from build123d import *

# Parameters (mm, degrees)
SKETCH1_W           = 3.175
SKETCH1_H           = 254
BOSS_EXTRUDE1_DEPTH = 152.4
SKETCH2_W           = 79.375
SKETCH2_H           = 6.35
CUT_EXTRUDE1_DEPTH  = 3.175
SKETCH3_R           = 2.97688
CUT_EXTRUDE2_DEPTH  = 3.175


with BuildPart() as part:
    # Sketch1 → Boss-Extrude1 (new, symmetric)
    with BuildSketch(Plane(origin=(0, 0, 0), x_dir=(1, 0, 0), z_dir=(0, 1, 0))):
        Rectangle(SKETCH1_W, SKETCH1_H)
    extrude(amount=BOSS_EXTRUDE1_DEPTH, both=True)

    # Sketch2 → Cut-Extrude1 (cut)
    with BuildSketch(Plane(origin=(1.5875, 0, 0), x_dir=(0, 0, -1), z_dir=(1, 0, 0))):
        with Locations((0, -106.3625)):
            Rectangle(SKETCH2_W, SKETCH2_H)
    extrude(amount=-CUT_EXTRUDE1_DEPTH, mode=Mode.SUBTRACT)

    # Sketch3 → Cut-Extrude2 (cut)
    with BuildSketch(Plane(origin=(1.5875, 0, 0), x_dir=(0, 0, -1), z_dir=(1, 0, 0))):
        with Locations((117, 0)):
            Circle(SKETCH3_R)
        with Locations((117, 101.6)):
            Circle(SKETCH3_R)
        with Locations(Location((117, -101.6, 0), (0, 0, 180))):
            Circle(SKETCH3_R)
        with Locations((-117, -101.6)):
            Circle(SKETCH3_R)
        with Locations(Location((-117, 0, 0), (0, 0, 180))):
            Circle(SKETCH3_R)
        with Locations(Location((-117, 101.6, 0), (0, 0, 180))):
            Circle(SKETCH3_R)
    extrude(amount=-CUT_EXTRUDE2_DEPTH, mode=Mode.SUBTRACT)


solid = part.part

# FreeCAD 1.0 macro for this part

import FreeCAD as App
import Part
import Sketcher

V = App.Vector
Q = App.Units.Quantity


def add_polygon(sketch, points):
    """Adds a closed chain of lines whose ends are joined by coincident constraints."""
    first, n = sketch.GeometryCount, len(points)
    for a, b in zip(points, points[1:] + points[:1]):
        sketch.addGeometry(Part.LineSegment(App.Vector(*a, 0), App.Vector(*b, 0)), False)
    for i in range(n):
        sketch.addConstraint(Sketcher.Constraint("Coincident", first + i, 2, first + (i + 1) % n, 1))

doc = App.newDocument("Part")
body = doc.addObject("PartDesign::Body", "Body")

# Sketch on XZ plane
sketch1 = body.newObject("Sketcher::SketchObject", "Sketch")
sketch1.AttachmentSupport = (doc.getObject("XZ_Plane"), [""])
sketch1.MapMode = "FlatFace"
add_polygon(sketch1, [(-1.6, -127), (-1.6, 127), (1.6, 127), (1.6, -127)])  # lines 0-3
sketch1.addConstraint(Sketcher.Constraint("Vertical", 0))
sketch1.addConstraint(Sketcher.Constraint("Horizontal", 1))
sketch1.addConstraint(Sketcher.Constraint("Vertical", 2))
sketch1.addConstraint(Sketcher.Constraint("Horizontal", 3))
sketch1.addConstraint(Sketcher.Constraint("Symmetric", 0, 2, 2, 2, -1, 1))
sketch1.addConstraint(Sketcher.Constraint("DistanceY", 0, 1, 0, 2, Q("10 in")))
sketch1.addConstraint(Sketcher.Constraint("DistanceX", 1, 1, 1, 2, Q("0.125 in")))
pad1 = body.newObject("PartDesign::Pad", "Pad")
pad1.Profile = sketch1
pad1.Length = Q("12 in")
pad1.Midplane = True

# Sketch on YZ plane
sketch2 = body.newObject("Sketcher::SketchObject", "Sketch001")
sketch2.AttachmentSupport = (doc.getObject("YZ_Plane"), [""])
sketch2.MapMode = "FlatFace"
sketch2.AttachmentOffset = App.Placement(V(0, 0, 0.0625 * 25.4), App.Rotation())
add_polygon(sketch2, [(-103, 40), (-110, 40), (-110, -40), (-103, -40)])  # lines 0-3
sketch2.addConstraint(Sketcher.Constraint("Horizontal", 0))
sketch2.addConstraint(Sketcher.Constraint("Vertical", 1))
sketch2.addConstraint(Sketcher.Constraint("Horizontal", 2))
sketch2.addConstraint(Sketcher.Constraint("Vertical", 3))
sketch2.addConstraint(Sketcher.Constraint("DistanceX", 0, 2, 0, 1, Q("0.25 in")))
sketch2.addConstraint(Sketcher.Constraint("DistanceY", 1, 2, 1, 1, Q("3.125 in")))
sketch2.addConstraint(Sketcher.Constraint("DistanceX", 0, 2, -1, 1, Q("4.3125 in")))
sketch2.addConstraint(Sketcher.Constraint("DistanceY", -1, 1, 0, 2, Q("1.5625 in")))
pocket1 = body.newObject("PartDesign::Pocket", "Pocket")
pocket1.Profile = sketch2
pocket1.Length = Q("0.125 in")

# Sketch on YZ plane
sketch3 = body.newObject("Sketcher::SketchObject", "Sketch002")
sketch3.AttachmentSupport = (doc.getObject("YZ_Plane"), [""])
sketch3.MapMode = "FlatFace"
sketch3.AttachmentOffset = App.Placement(V(0, 0, 0.0625 * 25.4), App.Rotation())
sketch3.addGeometry(Part.Circle(V(0, -117, 0), V(0, 0, 1), 3), False)
sketch3.addGeometry(Part.Circle(V(101.6, -117, 0), V(0, 0, 1), 3), False)
sketch3.addGeometry(Part.Circle(V(-101.6, -117, 0), V(0, 0, 1), 3), False)
sketch3.addGeometry(Part.Circle(V(-101.6, 117, 0), V(0, 0, 1), 3), False)
sketch3.addGeometry(Part.Circle(V(0, 117, 0), V(0, 0, 1), 3), False)
sketch3.addGeometry(Part.Circle(V(101.6, 117, 0), V(0, 0, 1), 3), False)
sketch3.addConstraint(Sketcher.Constraint("Equal", 0, 1))
sketch3.addConstraint(Sketcher.Constraint("Equal", 1, 2))
sketch3.addConstraint(Sketcher.Constraint("Equal", 2, 3))
sketch3.addConstraint(Sketcher.Constraint("Equal", 3, 4))
sketch3.addConstraint(Sketcher.Constraint("Equal", 4, 5))
sketch3.addConstraint(Sketcher.Constraint("Symmetric", 1, 3, 3, 3, -1, 1))
sketch3.addConstraint(Sketcher.Constraint("Symmetric", 0, 3, 4, 3, -1, 1))
sketch3.addConstraint(Sketcher.Constraint("Symmetric", 2, 3, 5, 3, -1, 1))
sketch3.addConstraint(Sketcher.Constraint("Symmetric", 1, 3, 2, 3, -2))
sketch3.addConstraint(Sketcher.Constraint("PointOnObject", 0, 3, -2))
sketch3.addConstraint(Sketcher.Constraint("Horizontal", 0, 3, 1, 3))
sketch3.addConstraint(Sketcher.Constraint("DistanceX", -1, 1, 1, 3, Q("4 in")))
sketch3.addConstraint(Sketcher.Constraint("Diameter", 0, Q("0.2344 in")))
sketch3.addConstraint(Sketcher.Constraint("DistanceY", 0, 3, -1, 1, Q("117 mm")))
pocket2 = body.newObject("PartDesign::Pocket", "Pocket001")
pocket2.Profile = sketch3
pocket2.Length = Q("0.125 in")

doc.recompute()
